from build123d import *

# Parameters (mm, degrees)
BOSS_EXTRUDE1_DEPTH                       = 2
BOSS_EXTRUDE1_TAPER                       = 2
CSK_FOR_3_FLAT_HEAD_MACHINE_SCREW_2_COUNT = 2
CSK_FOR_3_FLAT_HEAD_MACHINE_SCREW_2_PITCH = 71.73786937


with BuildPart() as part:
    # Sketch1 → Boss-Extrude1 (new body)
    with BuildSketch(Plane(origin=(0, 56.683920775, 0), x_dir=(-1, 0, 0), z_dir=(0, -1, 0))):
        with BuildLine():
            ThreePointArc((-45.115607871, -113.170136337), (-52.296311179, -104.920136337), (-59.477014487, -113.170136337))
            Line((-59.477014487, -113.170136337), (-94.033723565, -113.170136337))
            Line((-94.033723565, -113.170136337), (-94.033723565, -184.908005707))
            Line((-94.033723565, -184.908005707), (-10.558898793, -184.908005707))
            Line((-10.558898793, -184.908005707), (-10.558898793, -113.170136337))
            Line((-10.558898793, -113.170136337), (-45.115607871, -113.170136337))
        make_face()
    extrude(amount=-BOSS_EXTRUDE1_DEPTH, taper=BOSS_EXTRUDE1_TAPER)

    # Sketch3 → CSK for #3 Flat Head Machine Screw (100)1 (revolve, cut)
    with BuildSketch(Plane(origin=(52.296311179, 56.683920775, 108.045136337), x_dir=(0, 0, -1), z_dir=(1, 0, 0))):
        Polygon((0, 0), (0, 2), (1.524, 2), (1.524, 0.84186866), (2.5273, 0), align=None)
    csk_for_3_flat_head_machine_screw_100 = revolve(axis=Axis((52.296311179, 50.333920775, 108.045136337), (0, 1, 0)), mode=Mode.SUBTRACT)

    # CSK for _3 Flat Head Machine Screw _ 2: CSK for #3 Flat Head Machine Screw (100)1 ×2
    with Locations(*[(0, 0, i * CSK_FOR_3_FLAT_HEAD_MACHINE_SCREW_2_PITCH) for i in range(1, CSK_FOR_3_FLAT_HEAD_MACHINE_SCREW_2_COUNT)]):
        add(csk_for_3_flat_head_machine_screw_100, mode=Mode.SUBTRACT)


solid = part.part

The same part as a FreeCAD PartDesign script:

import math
import FreeCAD as App
import Part
import Sketcher

V = App.Vector
Q = App.Units.Quantity


def add_polygon(sketch, points):
    """Adds a closed chain of lines whose ends are joined by coincident constraints."""
    first, n = sketch.GeometryCount, len(points)
    for a, b in zip(points, points[1:] + points[:1]):
        sketch.addGeometry(Part.LineSegment(App.Vector(*a, 0), App.Vector(*b, 0)), False)
    for i in range(n):
        sketch.addConstraint(Sketcher.Constraint("Coincident", first + i, 2, first + (i + 1) % n, 1))

doc = App.newDocument("Part")
body = doc.addObject("PartDesign::Body", "Body")

# Sketch on XZ plane
sketch1 = body.newObject("Sketcher::SketchObject", "Sketch")
sketch1.AttachmentSupport = (doc.getObject("XZ_Plane"), [""])
sketch1.MapMode = "FlatFace"
sketch1.AttachmentOffset = App.Placement(V(0, 0, -56.683921), App.Rotation())
sketch1.addGeometry(Part.ArcOfCircle(Part.Circle(V(52.296311, 112.170136, 0), V(0, 0, 1), 7.25), math.radians(172.071858), math.radians(367.928142)), False)
sketch1.addGeometry(Part.LineSegment(V(59.477014, 113.170136, 0), V(94.033724, 113.170136, 0)), False)
sketch1.addGeometry(Part.LineSegment(V(94.033724, 113.170136, 0), V(94.033724, 184.908006, 0)), False)
sketch1.addGeometry(Part.LineSegment(V(94.033724, 184.908006, 0), V(10.558899, 184.908006, 0)), False)
sketch1.addGeometry(Part.LineSegment(V(10.558899, 184.908006, 0), V(10.558899, 113.170136, 0)), False)
sketch1.addGeometry(Part.LineSegment(V(10.558899, 113.170136, 0), V(45.115608, 113.170136, 0)), False)
sketch1.addConstraint(Sketcher.Constraint("Coincident", 0, 2, 1, 1))
sketch1.addConstraint(Sketcher.Constraint("Coincident", 1, 2, 2, 1))
sketch1.addConstraint(Sketcher.Constraint("Coincident", 2, 2, 3, 1))
sketch1.addConstraint(Sketcher.Constraint("Coincident", 3, 2, 4, 1))
sketch1.addConstraint(Sketcher.Constraint("Coincident", 4, 2, 5, 1))
sketch1.addConstraint(Sketcher.Constraint("Coincident", 5, 2, 0, 1))
sketch1.addConstraint(Sketcher.Constraint("Horizontal", 1))
sketch1.addConstraint(Sketcher.Constraint("Vertical", 2))
sketch1.addConstraint(Sketcher.Constraint("Horizontal", 3))
sketch1.addConstraint(Sketcher.Constraint("Vertical", 4))
sketch1.addConstraint(Sketcher.Constraint("Horizontal", 5))
sketch1.addConstraint(Sketcher.Constraint("Horizontal", 1, 2, 4, 2))
sketch1.addConstraint(Sketcher.Constraint("Equal", 1, 5))
sketch1.addConstraint(Sketcher.Constraint("Radius", 0, 7.25))
sketch1.addConstraint(Sketcher.Constraint("DistanceY", 0, 3, 0, 2, 1.0))
sketch1.addConstraint(Sketcher.Constraint("DistanceX", 1, 1, 1, 2, 34.556709))
sketch1.addConstraint(Sketcher.Constraint("DistanceY", 2, 1, 2, 2, 71.737869))
sketch1.addConstraint(Sketcher.Constraint("DistanceX", -1, 1, 3, 2, 10.558899))
sketch1.addConstraint(Sketcher.Constraint("DistanceY", -1, 1, 0, 3, 112.170136))
pad1 = body.newObject("PartDesign::Pad", "Pad")
pad1.Profile = sketch1
pad1.Length = 2
pad1.Reversed = True
pad1.TaperAngle = -2

# Sketch on YZ plane
sketch2 = body.newObject("Sketcher::SketchObject", "Sketch001")
sketch2.AttachmentSupport = (doc.getObject("YZ_Plane"), [""])
sketch2.MapMode = "FlatFace"
sketch2.AttachmentOffset = App.Placement(V(0, 0, 52.296311), App.Rotation())
add_polygon(sketch2, [(58.683921, 108.045136), (56.683921, 108.045136), (56.683921, 105.517836), (57.525789, 106.521136), (58.683921, 106.521136)])  # lines 0-4
sketch2.addGeometry(Part.LineSegment(V(56.683921, 108.045136, 0), V(58.683921, 108.045136, 0)), True)  # axis
sketch2.addConstraint(Sketcher.Constraint("Horizontal", 0))
sketch2.addConstraint(Sketcher.Constraint("Vertical", 1))
sketch2.addConstraint(Sketcher.Constraint("Horizontal", 3))
sketch2.addConstraint(Sketcher.Constraint("Vertical", 4))
sketch2.addConstraint(Sketcher.Constraint("Horizontal", 5))
sketch2.addConstraint(Sketcher.Constraint("Coincident", 5, 1, 0, 2))
sketch2.addConstraint(Sketcher.Constraint("Vertical", 3, 2, 5, 2))
sketch2.addConstraint(Sketcher.Constraint("DistanceX", 0, 2, 0, 1, 2.0))
sketch2.addConstraint(Sketcher.Constraint("Angle", 2, Q("50 deg")))
sketch2.addConstraint(Sketcher.Constraint("DistanceY", 4, 1, 4, 2, 1.524))
sketch2.addConstraint(Sketcher.Constraint("DistanceY", 1, 2, 1, 1, 2.5273))
sketch2.addConstraint(Sketcher.Constraint("DistanceX", -1, 1, 0, 2, 56.683921))
sketch2.addConstraint(Sketcher.Constraint("DistanceY", -1, 1, 0, 2, 108.045136))
groove = body.newObject("PartDesign::Groove", "Groove")
groove.Profile = sketch2
groove.ReferenceAxis = (sketch2, ["Axis0"])
groove.Angle = 360
doc.recompute()

linearpattern = body.newObject("PartDesign::LinearPattern", "LinearPattern")
linearpattern.Originals = [groove]
linearpattern.Direction = (doc.getObject("Z_Axis"), [""])
linearpattern.Mode = "offset"
linearpattern.Offset = 71.737869
linearpattern.Occurrences = 2
body.Tip = linearpattern

doc.recompute()
